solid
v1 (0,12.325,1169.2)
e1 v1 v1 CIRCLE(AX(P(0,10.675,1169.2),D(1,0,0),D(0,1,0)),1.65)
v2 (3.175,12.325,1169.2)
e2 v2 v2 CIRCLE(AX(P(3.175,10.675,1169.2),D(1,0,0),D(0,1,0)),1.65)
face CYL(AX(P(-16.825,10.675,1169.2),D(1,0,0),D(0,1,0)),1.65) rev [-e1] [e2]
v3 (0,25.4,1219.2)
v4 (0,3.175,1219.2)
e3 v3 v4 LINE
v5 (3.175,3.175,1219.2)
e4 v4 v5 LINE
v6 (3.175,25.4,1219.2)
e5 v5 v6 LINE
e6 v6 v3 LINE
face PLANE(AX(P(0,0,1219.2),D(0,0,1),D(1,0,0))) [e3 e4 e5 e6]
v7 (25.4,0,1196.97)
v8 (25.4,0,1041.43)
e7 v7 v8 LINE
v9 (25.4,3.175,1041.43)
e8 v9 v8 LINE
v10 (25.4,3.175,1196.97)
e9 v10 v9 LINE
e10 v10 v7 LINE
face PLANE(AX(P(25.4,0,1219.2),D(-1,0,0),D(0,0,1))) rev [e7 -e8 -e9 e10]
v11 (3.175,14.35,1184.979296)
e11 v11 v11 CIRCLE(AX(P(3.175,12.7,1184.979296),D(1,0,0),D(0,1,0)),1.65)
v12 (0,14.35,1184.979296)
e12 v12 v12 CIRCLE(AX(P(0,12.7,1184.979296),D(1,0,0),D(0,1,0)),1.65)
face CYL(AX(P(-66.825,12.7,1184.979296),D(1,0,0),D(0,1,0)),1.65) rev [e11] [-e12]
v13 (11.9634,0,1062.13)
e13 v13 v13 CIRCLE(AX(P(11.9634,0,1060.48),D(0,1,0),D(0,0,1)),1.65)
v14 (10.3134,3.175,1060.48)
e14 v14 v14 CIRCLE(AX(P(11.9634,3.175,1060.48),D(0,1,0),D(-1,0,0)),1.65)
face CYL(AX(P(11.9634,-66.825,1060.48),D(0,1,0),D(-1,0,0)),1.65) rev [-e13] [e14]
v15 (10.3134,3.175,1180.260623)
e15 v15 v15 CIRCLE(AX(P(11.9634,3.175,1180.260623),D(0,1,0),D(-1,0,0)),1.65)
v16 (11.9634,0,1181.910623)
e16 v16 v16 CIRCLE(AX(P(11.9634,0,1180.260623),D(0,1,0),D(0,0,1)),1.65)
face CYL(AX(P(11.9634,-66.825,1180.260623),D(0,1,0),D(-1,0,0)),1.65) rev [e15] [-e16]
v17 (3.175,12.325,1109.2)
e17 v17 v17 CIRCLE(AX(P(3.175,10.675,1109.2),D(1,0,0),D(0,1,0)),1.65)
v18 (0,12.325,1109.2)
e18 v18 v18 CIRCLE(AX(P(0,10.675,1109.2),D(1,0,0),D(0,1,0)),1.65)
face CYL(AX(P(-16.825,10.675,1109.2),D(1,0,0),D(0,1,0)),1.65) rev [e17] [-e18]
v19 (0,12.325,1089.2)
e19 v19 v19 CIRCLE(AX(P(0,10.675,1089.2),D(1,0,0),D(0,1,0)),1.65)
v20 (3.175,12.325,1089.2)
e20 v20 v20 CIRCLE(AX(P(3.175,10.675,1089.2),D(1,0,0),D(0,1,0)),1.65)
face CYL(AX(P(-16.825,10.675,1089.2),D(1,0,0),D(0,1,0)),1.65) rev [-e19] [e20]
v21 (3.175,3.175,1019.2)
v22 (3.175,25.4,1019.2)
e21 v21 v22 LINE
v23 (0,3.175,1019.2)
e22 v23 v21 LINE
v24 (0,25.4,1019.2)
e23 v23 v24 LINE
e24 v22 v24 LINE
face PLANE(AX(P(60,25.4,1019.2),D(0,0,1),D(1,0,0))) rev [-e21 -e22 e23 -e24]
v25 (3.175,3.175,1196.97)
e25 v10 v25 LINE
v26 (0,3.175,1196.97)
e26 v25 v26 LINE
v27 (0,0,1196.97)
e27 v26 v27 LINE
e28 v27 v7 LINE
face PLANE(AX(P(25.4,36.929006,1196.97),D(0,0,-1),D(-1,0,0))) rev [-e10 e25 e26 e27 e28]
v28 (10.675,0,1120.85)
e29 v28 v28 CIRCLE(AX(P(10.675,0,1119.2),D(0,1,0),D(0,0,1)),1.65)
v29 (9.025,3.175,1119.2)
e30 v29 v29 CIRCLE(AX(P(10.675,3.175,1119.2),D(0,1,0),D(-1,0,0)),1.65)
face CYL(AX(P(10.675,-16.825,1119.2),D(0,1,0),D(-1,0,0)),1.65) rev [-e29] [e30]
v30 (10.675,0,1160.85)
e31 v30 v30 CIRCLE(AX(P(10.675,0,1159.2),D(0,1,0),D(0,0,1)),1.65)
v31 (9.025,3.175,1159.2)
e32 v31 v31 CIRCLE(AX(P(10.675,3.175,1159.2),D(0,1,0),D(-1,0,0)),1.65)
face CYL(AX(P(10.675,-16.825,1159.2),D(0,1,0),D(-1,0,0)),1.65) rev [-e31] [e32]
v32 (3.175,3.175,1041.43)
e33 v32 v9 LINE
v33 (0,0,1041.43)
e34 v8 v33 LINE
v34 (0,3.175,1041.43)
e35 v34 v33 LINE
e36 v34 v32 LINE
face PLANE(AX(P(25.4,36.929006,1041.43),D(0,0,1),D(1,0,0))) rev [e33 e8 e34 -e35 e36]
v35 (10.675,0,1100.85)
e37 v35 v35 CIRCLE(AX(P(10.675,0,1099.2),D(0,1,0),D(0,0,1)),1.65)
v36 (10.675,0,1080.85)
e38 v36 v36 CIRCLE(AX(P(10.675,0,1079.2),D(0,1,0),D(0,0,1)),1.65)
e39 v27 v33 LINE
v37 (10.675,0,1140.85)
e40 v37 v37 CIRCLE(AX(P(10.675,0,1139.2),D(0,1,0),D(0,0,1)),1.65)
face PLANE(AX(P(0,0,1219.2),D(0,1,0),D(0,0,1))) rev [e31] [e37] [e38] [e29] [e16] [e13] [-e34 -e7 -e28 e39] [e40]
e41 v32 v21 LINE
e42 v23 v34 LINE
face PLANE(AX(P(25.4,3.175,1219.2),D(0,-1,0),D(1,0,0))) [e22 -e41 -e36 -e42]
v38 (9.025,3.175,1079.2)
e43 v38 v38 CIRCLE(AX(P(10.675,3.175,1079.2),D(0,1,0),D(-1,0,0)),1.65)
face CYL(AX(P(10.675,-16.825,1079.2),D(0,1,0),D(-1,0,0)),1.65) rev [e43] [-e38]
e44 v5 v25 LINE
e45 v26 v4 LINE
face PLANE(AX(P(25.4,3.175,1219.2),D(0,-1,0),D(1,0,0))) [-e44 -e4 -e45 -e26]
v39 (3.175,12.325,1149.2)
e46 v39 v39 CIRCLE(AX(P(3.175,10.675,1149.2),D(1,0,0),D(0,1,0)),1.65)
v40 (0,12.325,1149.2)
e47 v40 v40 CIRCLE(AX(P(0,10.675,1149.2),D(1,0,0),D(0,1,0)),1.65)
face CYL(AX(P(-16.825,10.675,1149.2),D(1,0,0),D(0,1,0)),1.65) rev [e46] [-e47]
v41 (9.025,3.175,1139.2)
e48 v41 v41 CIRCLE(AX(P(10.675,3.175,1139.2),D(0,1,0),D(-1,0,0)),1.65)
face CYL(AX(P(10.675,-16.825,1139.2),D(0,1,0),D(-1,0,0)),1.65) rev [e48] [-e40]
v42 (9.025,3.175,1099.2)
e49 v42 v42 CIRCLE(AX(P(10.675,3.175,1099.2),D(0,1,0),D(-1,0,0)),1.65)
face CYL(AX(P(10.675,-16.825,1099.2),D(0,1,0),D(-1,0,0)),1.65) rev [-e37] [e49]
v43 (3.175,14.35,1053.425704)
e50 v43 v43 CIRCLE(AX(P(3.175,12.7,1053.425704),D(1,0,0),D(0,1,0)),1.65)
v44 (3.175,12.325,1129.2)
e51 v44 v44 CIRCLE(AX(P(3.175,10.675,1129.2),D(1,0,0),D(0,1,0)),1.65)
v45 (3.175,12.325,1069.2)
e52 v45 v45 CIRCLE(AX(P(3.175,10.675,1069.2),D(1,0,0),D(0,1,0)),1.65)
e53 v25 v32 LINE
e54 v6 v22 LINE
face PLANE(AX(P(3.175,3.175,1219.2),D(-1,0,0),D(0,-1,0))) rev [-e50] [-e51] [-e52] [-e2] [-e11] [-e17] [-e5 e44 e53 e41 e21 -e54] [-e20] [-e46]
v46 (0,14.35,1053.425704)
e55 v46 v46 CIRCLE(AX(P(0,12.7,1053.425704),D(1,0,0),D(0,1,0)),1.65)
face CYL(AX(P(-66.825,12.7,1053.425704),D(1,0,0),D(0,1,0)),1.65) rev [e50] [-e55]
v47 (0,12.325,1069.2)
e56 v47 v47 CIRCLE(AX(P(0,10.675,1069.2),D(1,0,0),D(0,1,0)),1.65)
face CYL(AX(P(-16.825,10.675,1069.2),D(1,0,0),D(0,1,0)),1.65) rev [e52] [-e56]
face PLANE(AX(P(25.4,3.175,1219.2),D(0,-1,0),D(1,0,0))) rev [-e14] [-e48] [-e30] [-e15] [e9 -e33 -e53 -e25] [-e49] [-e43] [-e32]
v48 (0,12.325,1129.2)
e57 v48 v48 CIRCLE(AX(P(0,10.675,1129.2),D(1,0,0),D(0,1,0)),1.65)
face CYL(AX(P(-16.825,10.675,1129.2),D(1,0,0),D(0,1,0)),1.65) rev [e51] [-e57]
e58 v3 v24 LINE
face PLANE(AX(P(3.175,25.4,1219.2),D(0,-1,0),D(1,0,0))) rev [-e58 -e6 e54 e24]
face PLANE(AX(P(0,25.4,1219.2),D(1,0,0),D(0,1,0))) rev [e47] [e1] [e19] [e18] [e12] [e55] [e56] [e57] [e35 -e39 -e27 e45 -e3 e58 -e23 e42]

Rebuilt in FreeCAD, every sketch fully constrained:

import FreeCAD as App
import Part
import Sketcher
from FreeCAD import Vector


def edges_at(feature, points):
    """Names of the edges that pass closest to the given points."""
    edges = feature.Shape.Edges
    near = lambda p: min(range(len(edges)), key=lambda i: edges[i].distToShape(Part.Vertex(*p))[0])
    return sorted({f"Edge{near(p) + 1}" for p in points})


def add_polygon(sketch, points):
    """Adds a closed chain of lines whose ends are joined by coincident constraints."""
    first, n = sketch.GeometryCount, len(points)
    for a, b in zip(points, points[1:] + points[:1]):
        sketch.addGeometry(Part.LineSegment(App.Vector(*a, 0), App.Vector(*b, 0)), False)
    for i in range(n):
        sketch.addConstraint(Sketcher.Constraint("Coincident", first + i, 2, first + (i + 1) % n, 1))

doc = App.newDocument("Part")
body = doc.addObject("PartDesign::Body", "Body")

# Sketch on XY plane
sketch1 = body.newObject("Sketcher::SketchObject", "Sketch")
sketch1.AttachmentSupport = (doc.getObject("XY_Plane"), [""])
sketch1.MapMode = "FlatFace"
add_polygon(sketch1, [(3.2, 25.4), (0, 25.4), (0, 0), (25.4, 0), (25.4, 3.2), (3.2, 3.2)])  # lines 0-5
sketch1.addConstraint(Sketcher.Constraint("Horizontal", 0))
sketch1.addConstraint(Sketcher.Constraint("Vertical", 1))
sketch1.addConstraint(Sketcher.Constraint("Horizontal", 2))
sketch1.addConstraint(Sketcher.Constraint("Vertical", 3))
sketch1.addConstraint(Sketcher.Constraint("Horizontal", 4))
sketch1.addConstraint(Sketcher.Constraint("Vertical", 5))
sketch1.addConstraint(Sketcher.Constraint("Coincident", 1, 2, -1, 1))
sketch1.addConstraint(Sketcher.Constraint("Equal", 2, 1))
sketch1.addConstraint(Sketcher.Constraint("Equal", 0, 3))
sketch1.addConstraint(Sketcher.Constraint("DistanceX", 2, 1, 2, 2, 25.4))
sketch1.addConstraint(Sketcher.Constraint("DistanceX", 0, 2, 0, 1, 3.175))
pad1 = body.newObject("PartDesign::Pad", "Pad")
pad1.Profile = sketch1
pad1.Length = 2438.4
pad1.Midplane = True
doc.recompute()

fillet = body.newObject("PartDesign::Fillet", "Fillet")
fillet.Base = (pad1, edges_at(pad1, [(3.175, 3.175, 0)]))
fillet.Radius = 0.4064

# Sketch on YZ plane
sketch2 = body.newObject("Sketcher::SketchObject", "Sketch001")
sketch2.AttachmentSupport = (doc.getObject("YZ_Plane"), [""])
sketch2.MapMode = "FlatFace"
add_polygon(sketch2, [(25, -1219), (-78, -1219), (-78, 1019), (25, 1019)])  # lines 0-3
sketch2.addConstraint(Sketcher.Constraint("Horizontal", 0))
sketch2.addConstraint(Sketcher.Constraint("Vertical", 1))
sketch2.addConstraint(Sketcher.Constraint("Horizontal", 2))
sketch2.addConstraint(Sketcher.Constraint("Vertical", 3))
sketch2.addConstraint(Sketcher.Constraint("DistanceY", 1, 1, 1, 2, 2238.4))
sketch2.addConstraint(Sketcher.Constraint("DistanceY", 0, 2, -1, 1, 1219.2))
sketch2.addConstraint(Sketcher.Constraint("DistanceX", -1, 1, 2, 2, 25.4))
sketch2.addConstraint(Sketcher.Constraint("DistanceX", 0, 2, 0, 1, 103.27852))
pocket1 = body.newObject("PartDesign::Pocket", "Pocket")
pocket1.Profile = sketch2
pocket1.Length = 60
pocket1.Reversed = True

# Sketch on XZ plane
sketch3 = body.newObject("Sketcher::SketchObject", "Sketch002")
sketch3.AttachmentSupport = (doc.getObject("XZ_Plane"), [""])
sketch3.MapMode = "FlatFace"
add_polygon(sketch3, [(0, 1041), (0, 1019), (25, 1019), (25, 1041)])  # lines 0-3
sketch3.addConstraint(Sketcher.Constraint("Vertical", 0))
sketch3.addConstraint(Sketcher.Constraint("Horizontal", 1))
sketch3.addConstraint(Sketcher.Constraint("Vertical", 2))
sketch3.addConstraint(Sketcher.Constraint("Horizontal", 3))
sketch3.addConstraint(Sketcher.Constraint("PointOnObject", 0, 2, -2))
sketch3.addConstraint(Sketcher.Constraint("DistanceX", 1, 1, 1, 2, 25.4))
sketch3.addConstraint(Sketcher.Constraint("DistanceY", 0, 2, 0, 1, 22.23))
sketch3.addConstraint(Sketcher.Constraint("DistanceY", -1, 1, 0, 2, 1019.2))
pocket2 = body.newObject("PartDesign::Pocket", "Pocket001")
pocket2.Profile = sketch3
pocket2.Length = 3.175

# Sketch on XZ plane
sketch4 = body.newObject("Sketcher::SketchObject", "Sketch003")
sketch4.AttachmentSupport = (doc.getObject("XZ_Plane"), [""])
sketch4.MapMode = "FlatFace"
add_polygon(sketch4, [(0, 1219), (0, 1197), (25, 1197), (25, 1219)])  # lines 0-3
sketch4.addConstraint(Sketcher.Constraint("Vertical", 0))
sketch4.addConstraint(Sketcher.Constraint("Horizontal", 1))
sketch4.addConstraint(Sketcher.Constraint("Vertical", 2))
sketch4.addConstraint(Sketcher.Constraint("Horizontal", 3))
sketch4.addConstraint(Sketcher.Constraint("PointOnObject", 0, 2, -2))
sketch4.addConstraint(Sketcher.Constraint("DistanceX", 1, 1, 1, 2, 25.4))
sketch4.addConstraint(Sketcher.Constraint("DistanceY", 0, 2, 0, 1, 22.23))
sketch4.addConstraint(Sketcher.Constraint("DistanceY", -1, 1, 2, 2, 1219.2))
pocket3 = body.newObject("PartDesign::Pocket", "Pocket002")
pocket3.Profile = sketch4
pocket3.Length = 3.175

# Sketch on XY plane
sketch5 = body.newObject("Sketcher::SketchObject", "Sketch004")
sketch5.AttachmentSupport = (doc.getObject("XY_Plane"), [""])
sketch5.MapMode = "FlatFace"
sketch5.AttachmentOffset = App.Placement(Vector(0, 0, 1019.2), App.Rotation())
add_polygon(sketch5, [(4.4, 4.2), (4.4, 3.2), (3.2, 3.2), (3.2, 4.2)])  # lines 0-3
sketch5.addConstraint(Sketcher.Constraint("Vertical", 0))
sketch5.addConstraint(Sketcher.Constraint("Horizontal", 1))
sketch5.addConstraint(Sketcher.Constraint("Vertical", 2))
sketch5.addConstraint(Sketcher.Constraint("Horizontal", 3))
sketch5.addConstraint(Sketcher.Constraint("DistanceY", -1, 1, 0, 2, 3.175))
sketch5.addConstraint(Sketcher.Constraint("DistanceX", -1, 1, 1, 2, 3.175))
sketch5.addConstraint(Sketcher.Constraint("DistanceX", 1, 2, 1, 1, 1.268909))
sketch5.addConstraint(Sketcher.Constraint("DistanceY", 0, 2, 0, 1, 1.024966))
pocket4 = body.newObject("PartDesign::Pocket", "Pocket003")
pocket4.Profile = sketch5
pocket4.Length = 220
pocket4.Reversed = True

# Sketch on YZ plane
sketch6 = body.newObject("Sketcher::SketchObject", "Sketch005")
sketch6.AttachmentSupport = (doc.getObject("YZ_Plane"), [""])
sketch6.MapMode = "FlatFace"
sketch6.AttachmentOffset = App.Placement(Vector(0, 0, 3.175), App.Rotation())
sketch6.addGeometry(Part.Circle(Vector(10.7, 1169.2, 0), Vector(0, 0, 1), 1.6), False)
sketch6.addGeometry(Part.Circle(Vector(10.7, 1149.2, 0), Vector(0, 0, 1), 1.6), False)
sketch6.addGeometry(Part.Circle(Vector(10.7, 1129.2, 0), Vector(0, 0, 1), 1.6), False)
sketch6.addGeometry(Part.Circle(Vector(10.7, 1109.2, 0), Vector(0, 0, 1), 1.6), False)
sketch6.addGeometry(Part.Circle(Vector(10.7, 1089.2, 0), Vector(0, 0, 1), 1.6), False)
sketch6.addGeometry(Part.Circle(Vector(10.7, 1069.2, 0), Vector(0, 0, 1), 1.6), False)
sketch6.addConstraint(Sketcher.Constraint("Equal", 0, 1))
sketch6.addConstraint(Sketcher.Constraint("Equal", 1, 2))
sketch6.addConstraint(Sketcher.Constraint("Equal", 2, 3))
sketch6.addConstraint(Sketcher.Constraint("Equal", 3, 4))
sketch6.addConstraint(Sketcher.Constraint("Equal", 4, 5))
sketch6.addConstraint(Sketcher.Constraint("Vertical", 0, 3, 1, 3))
sketch6.addConstraint(Sketcher.Constraint("Vertical", 1, 3, 2, 3))
sketch6.addConstraint(Sketcher.Constraint("Vertical", 2, 3, 3, 3))
sketch6.addConstraint(Sketcher.Constraint("Vertical", 3, 3, 4, 3))
sketch6.addConstraint(Sketcher.Constraint("Vertical", 4, 3, 5, 3))
sketch6.addConstraint(Sketcher.Constraint("Diameter", 0, 3.3))
sketch6.addConstraint(Sketcher.Constraint("DistanceY", 1, 3, 0, 3, 20.0))
sketch6.addConstraint(Sketcher.Constraint("DistanceY", 2, 3, 1, 3, 20.0))
sketch6.addConstraint(Sketcher.Constraint("DistanceY", 3, 3, 2, 3, 20.0))
sketch6.addConstraint(Sketcher.Constraint("DistanceY", 4, 3, 3, 3, 20.0))
sketch6.addConstraint(Sketcher.Constraint("DistanceY", 5, 3, 4, 3, 20.0))
sketch6.addConstraint(Sketcher.Constraint("DistanceY", -1, 1, 0, 3, 1169.2))
sketch6.addConstraint(Sketcher.Constraint("DistanceX", -1, 1, 0, 3, 10.675))
pocket5 = body.newObject("PartDesign::Pocket", "Pocket004")
pocket5.Profile = sketch6
pocket5.Length = 20

# Sketch on XZ plane
sketch7 = body.newObject("Sketcher::SketchObject", "Sketch006")
sketch7.AttachmentSupport = (doc.getObject("XZ_Plane"), [""])
sketch7.MapMode = "FlatFace"
sketch7.AttachmentOffset = App.Placement(Vector(0, 0, -3.175), App.Rotation())
sketch7.addGeometry(Part.Circle(Vector(10.7, 1079.2, 0), Vector(0, 0, 1), 1.6), False)
sketch7.addGeometry(Part.Circle(Vector(10.7, 1099.2, 0), Vector(0, 0, 1), 1.6), False)
sketch7.addGeometry(Part.Circle(Vector(10.7, 1119.2, 0), Vector(0, 0, 1), 1.6), False)
sketch7.addGeometry(Part.Circle(Vector(10.7, 1139.2, 0), Vector(0, 0, 1), 1.6), False)
sketch7.addGeometry(Part.Circle(Vector(10.7, 1159.2, 0), Vector(0, 0, 1), 1.6), False)
sketch7.addConstraint(Sketcher.Constraint("Equal", 0, 1))
sketch7.addConstraint(Sketcher.Constraint("Equal", 1, 2))
sketch7.addConstraint(Sketcher.Constraint("Equal", 2, 3))
sketch7.addConstraint(Sketcher.Constraint("Equal", 3, 4))
sketch7.addConstraint(Sketcher.Constraint("Vertical", 0, 3, 1, 3))
sketch7.addConstraint(Sketcher.Constraint("Vertical", 1, 3, 2, 3))
sketch7.addConstraint(Sketcher.Constraint("Vertical", 2, 3, 3, 3))
sketch7.addConstraint(Sketcher.Constraint("Vertical", 3, 3, 4, 3))
sketch7.addConstraint(Sketcher.Constraint("Diameter", 0, 3.3))
sketch7.addConstraint(Sketcher.Constraint("DistanceY", 0, 3, 1, 3, 20.0))
sketch7.addConstraint(Sketcher.Constraint("DistanceY", 1, 3, 2, 3, 20.0))
sketch7.addConstraint(Sketcher.Constraint("DistanceY", 2, 3, 3, 3, 20.0))
sketch7.addConstraint(Sketcher.Constraint("DistanceY", 3, 3, 4, 3, 20.0))
sketch7.addConstraint(Sketcher.Constraint("DistanceY", -1, 1, 0, 3, 1079.2))
sketch7.addConstraint(Sketcher.Constraint("DistanceX", -1, 1, 0, 3, 10.675))
pocket6 = body.newObject("PartDesign::Pocket", "Pocket005")
pocket6.Profile = sketch7
pocket6.Length = 20
pocket6.Reversed = True

# Sketch on YZ plane
sketch8 = body.newObject("Sketcher::SketchObject", "Sketch007")
sketch8.AttachmentSupport = (doc.getObject("YZ_Plane"), [""])
sketch8.MapMode = "FlatFace"
sketch8.AttachmentOffset = App.Placement(Vector(0, 0, 3.175), App.Rotation())
sketch8.addGeometry(Part.Circle(Vector(12.7, 1053.4, 0), Vector(0, 0, 1), 1.6), False)
sketch8.addGeometry(Part.Circle(Vector(12.7, 1185, 0), Vector(0, 0, 1), 1.6), False)
sketch8.addConstraint(Sketcher.Constraint("Equal", 0, 1))
sketch8.addConstraint(Sketcher.Constraint("Vertical", 0, 3, 1, 3))
sketch8.addConstraint(Sketcher.Constraint("Diameter", 0, 3.3))
sketch8.addConstraint(Sketcher.Constraint("DistanceX", -1, 1, 0, 3, 12.7))
sketch8.addConstraint(Sketcher.Constraint("DistanceY", 0, 3, 1, 3, 131.553591))
sketch8.addConstraint(Sketcher.Constraint("DistanceY", -1, 1, 0, 3, 1053.425704))
pocket7 = body.newObject("PartDesign::Pocket", "Pocket006")
pocket7.Profile = sketch8
pocket7.Length = 70

# Sketch on XZ plane
sketch9 = body.newObject("Sketcher::SketchObject", "Sketch008")
sketch9.AttachmentSupport = (doc.getObject("XZ_Plane"), [""])
sketch9.MapMode = "FlatFace"
sketch9.AttachmentOffset = App.Placement(Vector(0, 0, -3.175), App.Rotation())
sketch9.addGeometry(Part.Circle(Vector(12, 1180.3, 0), Vector(0, 0, 1), 1.6), False)
sketch9.addGeometry(Part.Circle(Vector(12, 1060.5, 0), Vector(0, 0, 1), 1.6), False)
sketch9.addConstraint(Sketcher.Constraint("Equal", 0, 1))
sketch9.addConstraint(Sketcher.Constraint("Vertical", 0, 3, 1, 3))
sketch9.addConstraint(Sketcher.Constraint("Diameter", 0, 3.3))
sketch9.addConstraint(Sketcher.Constraint("DistanceY", -1, 1, 1, 3, 1060.48))
sketch9.addConstraint(Sketcher.Constraint("DistanceX", -1, 1, 0, 3, 11.9634))
sketch9.addConstraint(Sketcher.Constraint("DistanceY", -1, 1, 0, 3, 1180.260623))
pocket8 = body.newObject("PartDesign::Pocket", "Pocket007")
pocket8.Profile = sketch9
pocket8.Length = 70
pocket8.Reversed = True

doc.recompute()
